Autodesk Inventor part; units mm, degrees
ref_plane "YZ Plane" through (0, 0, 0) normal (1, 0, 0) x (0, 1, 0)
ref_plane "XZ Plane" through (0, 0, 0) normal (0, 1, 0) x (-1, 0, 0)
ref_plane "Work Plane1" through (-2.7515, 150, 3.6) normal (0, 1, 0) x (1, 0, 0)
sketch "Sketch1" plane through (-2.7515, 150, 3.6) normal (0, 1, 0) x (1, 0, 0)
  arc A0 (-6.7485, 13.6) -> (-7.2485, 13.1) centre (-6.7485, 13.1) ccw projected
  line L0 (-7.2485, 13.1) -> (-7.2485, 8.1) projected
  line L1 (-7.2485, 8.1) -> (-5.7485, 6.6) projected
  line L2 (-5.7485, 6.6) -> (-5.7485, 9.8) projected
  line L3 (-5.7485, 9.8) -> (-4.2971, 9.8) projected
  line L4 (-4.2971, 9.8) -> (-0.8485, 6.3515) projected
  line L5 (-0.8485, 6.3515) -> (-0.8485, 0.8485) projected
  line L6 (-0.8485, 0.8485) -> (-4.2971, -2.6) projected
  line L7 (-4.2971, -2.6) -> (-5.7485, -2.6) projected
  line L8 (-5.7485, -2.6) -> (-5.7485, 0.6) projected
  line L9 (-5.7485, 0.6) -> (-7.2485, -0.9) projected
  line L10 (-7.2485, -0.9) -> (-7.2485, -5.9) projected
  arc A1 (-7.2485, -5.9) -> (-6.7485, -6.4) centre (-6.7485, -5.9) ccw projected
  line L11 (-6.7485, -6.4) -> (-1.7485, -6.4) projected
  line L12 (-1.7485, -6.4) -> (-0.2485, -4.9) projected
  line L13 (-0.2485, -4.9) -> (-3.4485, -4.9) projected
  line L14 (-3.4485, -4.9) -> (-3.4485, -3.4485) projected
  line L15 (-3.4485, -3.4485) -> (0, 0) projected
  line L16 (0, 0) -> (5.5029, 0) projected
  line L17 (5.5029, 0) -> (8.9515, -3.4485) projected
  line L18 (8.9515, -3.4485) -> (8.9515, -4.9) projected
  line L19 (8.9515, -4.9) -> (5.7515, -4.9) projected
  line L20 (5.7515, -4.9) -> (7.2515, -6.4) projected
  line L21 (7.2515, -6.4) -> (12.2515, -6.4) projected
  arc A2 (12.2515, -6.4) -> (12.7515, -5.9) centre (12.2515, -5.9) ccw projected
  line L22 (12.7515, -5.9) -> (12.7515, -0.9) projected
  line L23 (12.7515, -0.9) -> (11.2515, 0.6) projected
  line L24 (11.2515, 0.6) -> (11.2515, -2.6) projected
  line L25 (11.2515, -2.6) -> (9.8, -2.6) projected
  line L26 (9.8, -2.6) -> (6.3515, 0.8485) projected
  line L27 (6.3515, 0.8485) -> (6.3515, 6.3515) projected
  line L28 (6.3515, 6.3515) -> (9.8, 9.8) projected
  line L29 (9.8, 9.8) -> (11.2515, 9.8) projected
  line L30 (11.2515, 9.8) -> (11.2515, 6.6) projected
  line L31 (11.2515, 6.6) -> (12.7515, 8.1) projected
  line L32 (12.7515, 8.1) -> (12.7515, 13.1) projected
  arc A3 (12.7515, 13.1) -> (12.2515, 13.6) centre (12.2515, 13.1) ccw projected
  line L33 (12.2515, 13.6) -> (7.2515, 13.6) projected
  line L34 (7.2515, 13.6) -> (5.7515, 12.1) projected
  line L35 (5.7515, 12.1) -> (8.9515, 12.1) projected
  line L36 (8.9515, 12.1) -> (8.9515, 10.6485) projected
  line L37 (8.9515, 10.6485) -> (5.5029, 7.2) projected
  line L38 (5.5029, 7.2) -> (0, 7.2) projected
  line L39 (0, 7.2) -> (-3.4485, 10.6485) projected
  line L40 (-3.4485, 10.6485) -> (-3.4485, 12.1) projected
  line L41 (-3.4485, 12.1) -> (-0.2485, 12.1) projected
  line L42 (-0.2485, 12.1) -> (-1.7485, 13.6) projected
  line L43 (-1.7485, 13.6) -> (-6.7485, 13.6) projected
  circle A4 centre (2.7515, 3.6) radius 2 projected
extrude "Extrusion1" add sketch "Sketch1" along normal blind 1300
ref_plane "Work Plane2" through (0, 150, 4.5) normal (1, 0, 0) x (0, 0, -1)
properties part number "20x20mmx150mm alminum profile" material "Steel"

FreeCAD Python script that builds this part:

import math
import FreeCAD as App
import Part
import Sketcher

V = App.Vector
Q = App.Units.Quantity

doc = App.newDocument("Part")
body = doc.addObject("PartDesign::Body", "Body")

# Sketch on XZ plane
sketch1 = doc.addObject("Sketcher::SketchObject", "Sketch")
body.addObject(sketch1)
sketch1.AttachmentSupport = (doc.XZ_Plane, [""])
sketch1.MapMode = "FlatFace"
sketch1.AttachmentOffset = App.Placement(V(0, 0, -150), App.Rotation())
sketch1.addGeometry([
    Part.LineSegment(V(-4.5, -10, 0), V(-9.5, -10, 0)),  # 0
    Part.ArcOfCircle(Part.Circle(V(-9.5, -9.5, 0), V(0, 0, 1), 0.5), math.radians(180), math.radians(270)),  # 1
    Part.LineSegment(V(-10, -9.5, 0), V(-10, -4.5, 0)),  # 2
    Part.LineSegment(V(-10, -4.5, 0), V(-8.5, -3, 0)),  # 3
    Part.LineSegment(V(-8.5, -3, 0), V(-8.5, -6.2, 0)),  # 4
    Part.LineSegment(V(-8.5, -6.2, 0), V(-7, -6.2, 0)),  # 5
    Part.LineSegment(V(-7, -6.2, 0), V(-3.6, -2.8, 0)),  # 6
    Part.LineSegment(V(-3.6, -2.8, 0), V(-3.6, 2.8, 0)),  # 7
    Part.LineSegment(V(-3.6, 2.8, 0), V(-7, 6.2, 0)),  # 8
    Part.LineSegment(V(-7, 6.2, 0), V(-8.5, 6.2, 0)),  # 9
    Part.LineSegment(V(-8.5, 6.2, 0), V(-8.5, 3, 0)),  # 10
    Part.LineSegment(V(-8.5, 3, 0), V(-10, 4.5, 0)),  # 11
    Part.LineSegment(V(-10, 4.5, 0), V(-10, 9.5, 0)),  # 12
    Part.ArcOfCircle(Part.Circle(V(-9.5, 9.5, 0), V(0, 0, 1), 0.5), math.radians(90), math.radians(180)),  # 13
    Part.LineSegment(V(-9.5, 10, 0), V(-4.5, 10, 0)),  # 14
    Part.LineSegment(V(-4.5, 10, 0), V(-3, 8.5, 0)),  # 15
    Part.LineSegment(V(-3, 8.5, 0), V(-6.2, 8.5, 0)),  # 16
    Part.LineSegment(V(-6.2, 8.5, 0), V(-6.2, 7, 0)),  # 17
    Part.LineSegment(V(-6.2, 7, 0), V(-2.8, 3.6, 0)),  # 18
    Part.LineSegment(V(-2.8, 3.6, 0), V(2.8, 3.6, 0)),  # 19
    Part.LineSegment(V(2.8, 3.6, 0), V(6.2, 7, 0)),  # 20
    Part.LineSegment(V(6.2, 7, 0), V(6.2, 8.5, 0)),  # 21
    Part.LineSegment(V(6.2, 8.5, 0), V(3, 8.5, 0)),  # 22
    Part.LineSegment(V(3, 8.5, 0), V(4.5, 10, 0)),  # 23
    Part.LineSegment(V(4.5, 10, 0), V(9.5, 10, 0)),  # 24
    Part.ArcOfCircle(Part.Circle(V(9.5, 9.5, 0), V(0, 0, 1), 0.5), math.radians(0), math.radians(90)),  # 25
    Part.LineSegment(V(10, 9.5, 0), V(10, 4.5, 0)),  # 26
    Part.LineSegment(V(10, 4.5, 0), V(8.5, 3, 0)),  # 27
    Part.LineSegment(V(8.5, 3, 0), V(8.5, 6.2, 0)),  # 28
    Part.LineSegment(V(8.5, 6.2, 0), V(7, 6.2, 0)),  # 29
    Part.LineSegment(V(7, 6.2, 0), V(3.6, 2.8, 0)),  # 30
    Part.LineSegment(V(3.6, 2.8, 0), V(3.6, -2.8, 0)),  # 31
    Part.LineSegment(V(3.6, -2.8, 0), V(7, -6.2, 0)),  # 32
    Part.LineSegment(V(7, -6.2, 0), V(8.5, -6.2, 0)),  # 33
    Part.LineSegment(V(8.5, -6.2, 0), V(8.5, -3, 0)),  # 34
    Part.LineSegment(V(8.5, -3, 0), V(10, -4.5, 0)),  # 35
    Part.LineSegment(V(10, -4.5, 0), V(10, -9.5, 0)),  # 36
    Part.ArcOfCircle(Part.Circle(V(9.5, -9.5, 0), V(0, 0, 1), 0.5), math.radians(-90), math.radians(0)),  # 37
    Part.LineSegment(V(9.5, -10, 0), V(4.5, -10, 0)),  # 38
    Part.LineSegment(V(4.5, -10, 0), V(3, -8.5, 0)),  # 39
    Part.LineSegment(V(3, -8.5, 0), V(6.2, -8.5, 0)),  # 40
    Part.LineSegment(V(6.2, -8.5, 0), V(6.2, -7, 0)),  # 41
    Part.LineSegment(V(6.2, -7, 0), V(2.8, -3.6, 0)),  # 42
    Part.LineSegment(V(2.8, -3.6, 0), V(-2.8, -3.6, 0)),  # 43
    Part.LineSegment(V(-2.8, -3.6, 0), V(-6.2, -7, 0)),  # 44
    Part.LineSegment(V(-6.2, -7, 0), V(-6.2, -8.5, 0)),  # 45
    Part.LineSegment(V(-6.2, -8.5, 0), V(-3, -8.5, 0)),  # 46
    Part.LineSegment(V(-3, -8.5, 0), V(-4.5, -10, 0)),  # 47
    Part.Circle(V(0, 0, 0), V(0, 0, 1), 2),  # 48
], False)
sketch1.addConstraint([
    Sketcher.Constraint("Tangent", 0, 2, 1, 2),
    Sketcher.Constraint("Tangent", 1, 1, 2, 1),
    Sketcher.Constraint("Coincident", 2, 2, 3, 1),
    Sketcher.Constraint("Coincident", 3, 2, 4, 1),
    Sketcher.Constraint("Coincident", 4, 2, 5, 1),
    Sketcher.Constraint("Coincident", 5, 2, 6, 1),
    Sketcher.Constraint("Coincident", 6, 2, 7, 1),
    Sketcher.Constraint("Coincident", 7, 2, 8, 1),
    Sketcher.Constraint("Coincident", 8, 2, 9, 1),
    Sketcher.Constraint("Coincident", 9, 2, 10, 1),
    Sketcher.Constraint("Coincident", 10, 2, 11, 1),
    Sketcher.Constraint("Coincident", 11, 2, 12, 1),
    Sketcher.Constraint("Tangent", 12, 2, 13, 2),
    Sketcher.Constraint("Tangent", 13, 1, 14, 1),
    Sketcher.Constraint("Coincident", 14, 2, 15, 1),
    Sketcher.Constraint("Coincident", 15, 2, 16, 1),
    Sketcher.Constraint("Coincident", 16, 2, 17, 1),
    Sketcher.Constraint("Coincident", 17, 2, 18, 1),
    Sketcher.Constraint("Coincident", 18, 2, 19, 1),
    Sketcher.Constraint("Coincident", 19, 2, 20, 1),
    Sketcher.Constraint("Coincident", 20, 2, 21, 1),
    Sketcher.Constraint("Coincident", 21, 2, 22, 1),
    Sketcher.Constraint("Coincident", 22, 2, 23, 1),
    Sketcher.Constraint("Coincident", 23, 2, 24, 1),
    Sketcher.Constraint("Tangent", 24, 2, 25, 2),
    Sketcher.Constraint("Tangent", 25, 1, 26, 1),
    Sketcher.Constraint("Coincident", 26, 2, 27, 1),
    Sketcher.Constraint("Coincident", 27, 2, 28, 1),
    Sketcher.Constraint("Coincident", 28, 2, 29, 1),
    Sketcher.Constraint("Coincident", 29, 2, 30, 1),
    Sketcher.Constraint("Coincident", 30, 2, 31, 1),
    Sketcher.Constraint("Coincident", 31, 2, 32, 1),
    Sketcher.Constraint("Coincident", 32, 2, 33, 1),
    Sketcher.Constraint("Coincident", 33, 2, 34, 1),
    Sketcher.Constraint("Coincident", 34, 2, 35, 1),
    Sketcher.Constraint("Coincident", 35, 2, 36, 1),
    Sketcher.Constraint("Tangent", 36, 2, 37, 2),
    Sketcher.Constraint("Tangent", 37, 1, 38, 1),
    Sketcher.Constraint("Coincident", 38, 2, 39, 1),
    Sketcher.Constraint("Coincident", 39, 2, 40, 1),
    Sketcher.Constraint("Coincident", 40, 2, 41, 1),
    Sketcher.Constraint("Coincident", 41, 2, 42, 1),
    Sketcher.Constraint("Coincident", 42, 2, 43, 1),
    Sketcher.Constraint("Coincident", 43, 2, 44, 1),
    Sketcher.Constraint("Coincident", 44, 2, 45, 1),
    Sketcher.Constraint("Coincident", 45, 2, 46, 1),
    Sketcher.Constraint("Coincident", 46, 2, 47, 1),
    Sketcher.Constraint("Coincident", 47, 2, 0, 1),
    Sketcher.Constraint("Horizontal", 0),
    Sketcher.Constraint("Vertical", 2),
    Sketcher.Constraint("Vertical", 4),
    Sketcher.Constraint("Horizontal", 5),
    Sketcher.Constraint("Vertical", 7),
    Sketcher.Constraint("Horizontal", 9),
    Sketcher.Constraint("Vertical", 10),
    Sketcher.Constraint("Vertical", 12),
    Sketcher.Constraint("Horizontal", 14),
    Sketcher.Constraint("Horizontal", 16),
    Sketcher.Constraint("Vertical", 17),
    Sketcher.Constraint("Horizontal", 19),
    Sketcher.Constraint("Vertical", 21),
    Sketcher.Constraint("Horizontal", 22),
    Sketcher.Constraint("Horizontal", 24),
    Sketcher.Constraint("Vertical", 26),
    Sketcher.Constraint("Vertical", 28),
    Sketcher.Constraint("Horizontal", 29),
    Sketcher.Constraint("Vertical", 31),
    Sketcher.Constraint("Horizontal", 33),
    Sketcher.Constraint("Vertical", 34),
    Sketcher.Constraint("Vertical", 36),
    Sketcher.Constraint("Horizontal", 38),
    Sketcher.Constraint("Horizontal", 40),
    Sketcher.Constraint("Vertical", 41),
    Sketcher.Constraint("Horizontal", 43),
    Sketcher.Constraint("Vertical", 45),
    Sketcher.Constraint("Horizontal", 46),
    Sketcher.Constraint("Coincident", 48, 3, -1, 1),
    Sketcher.Constraint("Equal", 1, 13),
    Sketcher.Constraint("Equal", 13, 25),
    Sketcher.Constraint("Equal", 25, 37),
    Sketcher.Constraint("Symmetric", 1, 3, 25, 3, -1, 1),
    Sketcher.Constraint("Symmetric", 13, 3, 37, 3, -1, 1),
    Sketcher.Constraint("Symmetric", 3, 2, 27, 2, -1, 1),
    Sketcher.Constraint("Symmetric", 5, 2, 29, 2, -1, 1),
    Sketcher.Constraint("Symmetric", 6, 2, 30, 2, -1, 1),
    Sketcher.Constraint("Symmetric", 8, 2, 32, 2, -1, 1),
    Sketcher.Constraint("Symmetric", 10, 2, 34, 2, -1, 1),
    Sketcher.Constraint("Symmetric", 15, 2, 39, 2, -1, 1),
    Sketcher.Constraint("Symmetric", 17, 2, 41, 2, -1, 1),
    Sketcher.Constraint("Symmetric", 18, 2, 42, 2, -1, 1),
    Sketcher.Constraint("Symmetric", 20, 2, 44, 2, -1, 1),
    Sketcher.Constraint("Symmetric", 22, 2, 46, 2, -1, 1),
    Sketcher.Constraint("Symmetric", 13, 3, 25, 3, -2),
    Sketcher.Constraint("Symmetric", 17, 2, 20, 2, -2),
    Sketcher.Constraint("Symmetric", 15, 2, 22, 2, -2),
    Sketcher.Constraint("Symmetric", 10, 2, 27, 2, -2),
    Sketcher.Constraint("Symmetric", 8, 2, 29, 2, -2),
    Sketcher.Constraint("Parallel", 3, 6),
    Sketcher.Constraint("Perpendicular", 6, 8),
    Sketcher.Constraint("Parallel", 8, 11),
    Sketcher.Constraint("Parallel", 11, 15),
    Sketcher.Constraint("Parallel", 15, 18),
    Sketcher.Constraint("Perpendicular", 18, 20),
    Sketcher.Constraint("Parallel", 20, 23),
    Sketcher.Constraint("Parallel", 23, 27),
    Sketcher.Constraint("Perpendicular", 30, 32),
    Sketcher.Constraint("Parallel", 32, 35),
    Sketcher.Constraint("Parallel", 35, 39),
    Sketcher.Constraint("Perpendicular", 42, 44),
    Sketcher.Constraint("Parallel", 44, 47),
    Sketcher.Constraint("Horizontal", 11, 2, 26, 2),
    Sketcher.Constraint("Equal", 38, 2),
    Sketcher.Constraint("Equal", 46, 4),
    Sketcher.Constraint("Equal", 43, 7),
    Sketcher.Constraint("Equal", 33, 17),
    Sketcher.Constraint("Equal", 11, 15),
    Sketcher.Constraint("Equal", 8, 18),
    Sketcher.Constraint("Diameter", 48, Q("4 mm")),
    Sketcher.Constraint("Radius", 1, Q("0.5 mm")),
    Sketcher.Constraint("DistanceX", 0, 2, 0, 1, Q("5 mm")),
    Sketcher.Constraint("DistanceX", 16, 2, 16, 1, Q("3.2 mm")),
    Sketcher.Constraint("DistanceY", 0, 2, -1, 1, Q("10 mm")),
    Sketcher.Constraint("DistanceY", 3, 2, -1, 1, Q("3 mm")),
    Sketcher.Constraint("DistanceX", 6, 2, -1, 1, Q("3.6 mm")),
    Sketcher.Constraint("DistanceX", 19, 1, 19, 2, Q("5.503 mm")),
])
pad1 = doc.addObject("PartDesign::Pad", "Pad")
body.addObject(pad1)
pad1.Profile = sketch1
pad1.Length = 1300
pad1.Reversed = True

doc.recompute()
